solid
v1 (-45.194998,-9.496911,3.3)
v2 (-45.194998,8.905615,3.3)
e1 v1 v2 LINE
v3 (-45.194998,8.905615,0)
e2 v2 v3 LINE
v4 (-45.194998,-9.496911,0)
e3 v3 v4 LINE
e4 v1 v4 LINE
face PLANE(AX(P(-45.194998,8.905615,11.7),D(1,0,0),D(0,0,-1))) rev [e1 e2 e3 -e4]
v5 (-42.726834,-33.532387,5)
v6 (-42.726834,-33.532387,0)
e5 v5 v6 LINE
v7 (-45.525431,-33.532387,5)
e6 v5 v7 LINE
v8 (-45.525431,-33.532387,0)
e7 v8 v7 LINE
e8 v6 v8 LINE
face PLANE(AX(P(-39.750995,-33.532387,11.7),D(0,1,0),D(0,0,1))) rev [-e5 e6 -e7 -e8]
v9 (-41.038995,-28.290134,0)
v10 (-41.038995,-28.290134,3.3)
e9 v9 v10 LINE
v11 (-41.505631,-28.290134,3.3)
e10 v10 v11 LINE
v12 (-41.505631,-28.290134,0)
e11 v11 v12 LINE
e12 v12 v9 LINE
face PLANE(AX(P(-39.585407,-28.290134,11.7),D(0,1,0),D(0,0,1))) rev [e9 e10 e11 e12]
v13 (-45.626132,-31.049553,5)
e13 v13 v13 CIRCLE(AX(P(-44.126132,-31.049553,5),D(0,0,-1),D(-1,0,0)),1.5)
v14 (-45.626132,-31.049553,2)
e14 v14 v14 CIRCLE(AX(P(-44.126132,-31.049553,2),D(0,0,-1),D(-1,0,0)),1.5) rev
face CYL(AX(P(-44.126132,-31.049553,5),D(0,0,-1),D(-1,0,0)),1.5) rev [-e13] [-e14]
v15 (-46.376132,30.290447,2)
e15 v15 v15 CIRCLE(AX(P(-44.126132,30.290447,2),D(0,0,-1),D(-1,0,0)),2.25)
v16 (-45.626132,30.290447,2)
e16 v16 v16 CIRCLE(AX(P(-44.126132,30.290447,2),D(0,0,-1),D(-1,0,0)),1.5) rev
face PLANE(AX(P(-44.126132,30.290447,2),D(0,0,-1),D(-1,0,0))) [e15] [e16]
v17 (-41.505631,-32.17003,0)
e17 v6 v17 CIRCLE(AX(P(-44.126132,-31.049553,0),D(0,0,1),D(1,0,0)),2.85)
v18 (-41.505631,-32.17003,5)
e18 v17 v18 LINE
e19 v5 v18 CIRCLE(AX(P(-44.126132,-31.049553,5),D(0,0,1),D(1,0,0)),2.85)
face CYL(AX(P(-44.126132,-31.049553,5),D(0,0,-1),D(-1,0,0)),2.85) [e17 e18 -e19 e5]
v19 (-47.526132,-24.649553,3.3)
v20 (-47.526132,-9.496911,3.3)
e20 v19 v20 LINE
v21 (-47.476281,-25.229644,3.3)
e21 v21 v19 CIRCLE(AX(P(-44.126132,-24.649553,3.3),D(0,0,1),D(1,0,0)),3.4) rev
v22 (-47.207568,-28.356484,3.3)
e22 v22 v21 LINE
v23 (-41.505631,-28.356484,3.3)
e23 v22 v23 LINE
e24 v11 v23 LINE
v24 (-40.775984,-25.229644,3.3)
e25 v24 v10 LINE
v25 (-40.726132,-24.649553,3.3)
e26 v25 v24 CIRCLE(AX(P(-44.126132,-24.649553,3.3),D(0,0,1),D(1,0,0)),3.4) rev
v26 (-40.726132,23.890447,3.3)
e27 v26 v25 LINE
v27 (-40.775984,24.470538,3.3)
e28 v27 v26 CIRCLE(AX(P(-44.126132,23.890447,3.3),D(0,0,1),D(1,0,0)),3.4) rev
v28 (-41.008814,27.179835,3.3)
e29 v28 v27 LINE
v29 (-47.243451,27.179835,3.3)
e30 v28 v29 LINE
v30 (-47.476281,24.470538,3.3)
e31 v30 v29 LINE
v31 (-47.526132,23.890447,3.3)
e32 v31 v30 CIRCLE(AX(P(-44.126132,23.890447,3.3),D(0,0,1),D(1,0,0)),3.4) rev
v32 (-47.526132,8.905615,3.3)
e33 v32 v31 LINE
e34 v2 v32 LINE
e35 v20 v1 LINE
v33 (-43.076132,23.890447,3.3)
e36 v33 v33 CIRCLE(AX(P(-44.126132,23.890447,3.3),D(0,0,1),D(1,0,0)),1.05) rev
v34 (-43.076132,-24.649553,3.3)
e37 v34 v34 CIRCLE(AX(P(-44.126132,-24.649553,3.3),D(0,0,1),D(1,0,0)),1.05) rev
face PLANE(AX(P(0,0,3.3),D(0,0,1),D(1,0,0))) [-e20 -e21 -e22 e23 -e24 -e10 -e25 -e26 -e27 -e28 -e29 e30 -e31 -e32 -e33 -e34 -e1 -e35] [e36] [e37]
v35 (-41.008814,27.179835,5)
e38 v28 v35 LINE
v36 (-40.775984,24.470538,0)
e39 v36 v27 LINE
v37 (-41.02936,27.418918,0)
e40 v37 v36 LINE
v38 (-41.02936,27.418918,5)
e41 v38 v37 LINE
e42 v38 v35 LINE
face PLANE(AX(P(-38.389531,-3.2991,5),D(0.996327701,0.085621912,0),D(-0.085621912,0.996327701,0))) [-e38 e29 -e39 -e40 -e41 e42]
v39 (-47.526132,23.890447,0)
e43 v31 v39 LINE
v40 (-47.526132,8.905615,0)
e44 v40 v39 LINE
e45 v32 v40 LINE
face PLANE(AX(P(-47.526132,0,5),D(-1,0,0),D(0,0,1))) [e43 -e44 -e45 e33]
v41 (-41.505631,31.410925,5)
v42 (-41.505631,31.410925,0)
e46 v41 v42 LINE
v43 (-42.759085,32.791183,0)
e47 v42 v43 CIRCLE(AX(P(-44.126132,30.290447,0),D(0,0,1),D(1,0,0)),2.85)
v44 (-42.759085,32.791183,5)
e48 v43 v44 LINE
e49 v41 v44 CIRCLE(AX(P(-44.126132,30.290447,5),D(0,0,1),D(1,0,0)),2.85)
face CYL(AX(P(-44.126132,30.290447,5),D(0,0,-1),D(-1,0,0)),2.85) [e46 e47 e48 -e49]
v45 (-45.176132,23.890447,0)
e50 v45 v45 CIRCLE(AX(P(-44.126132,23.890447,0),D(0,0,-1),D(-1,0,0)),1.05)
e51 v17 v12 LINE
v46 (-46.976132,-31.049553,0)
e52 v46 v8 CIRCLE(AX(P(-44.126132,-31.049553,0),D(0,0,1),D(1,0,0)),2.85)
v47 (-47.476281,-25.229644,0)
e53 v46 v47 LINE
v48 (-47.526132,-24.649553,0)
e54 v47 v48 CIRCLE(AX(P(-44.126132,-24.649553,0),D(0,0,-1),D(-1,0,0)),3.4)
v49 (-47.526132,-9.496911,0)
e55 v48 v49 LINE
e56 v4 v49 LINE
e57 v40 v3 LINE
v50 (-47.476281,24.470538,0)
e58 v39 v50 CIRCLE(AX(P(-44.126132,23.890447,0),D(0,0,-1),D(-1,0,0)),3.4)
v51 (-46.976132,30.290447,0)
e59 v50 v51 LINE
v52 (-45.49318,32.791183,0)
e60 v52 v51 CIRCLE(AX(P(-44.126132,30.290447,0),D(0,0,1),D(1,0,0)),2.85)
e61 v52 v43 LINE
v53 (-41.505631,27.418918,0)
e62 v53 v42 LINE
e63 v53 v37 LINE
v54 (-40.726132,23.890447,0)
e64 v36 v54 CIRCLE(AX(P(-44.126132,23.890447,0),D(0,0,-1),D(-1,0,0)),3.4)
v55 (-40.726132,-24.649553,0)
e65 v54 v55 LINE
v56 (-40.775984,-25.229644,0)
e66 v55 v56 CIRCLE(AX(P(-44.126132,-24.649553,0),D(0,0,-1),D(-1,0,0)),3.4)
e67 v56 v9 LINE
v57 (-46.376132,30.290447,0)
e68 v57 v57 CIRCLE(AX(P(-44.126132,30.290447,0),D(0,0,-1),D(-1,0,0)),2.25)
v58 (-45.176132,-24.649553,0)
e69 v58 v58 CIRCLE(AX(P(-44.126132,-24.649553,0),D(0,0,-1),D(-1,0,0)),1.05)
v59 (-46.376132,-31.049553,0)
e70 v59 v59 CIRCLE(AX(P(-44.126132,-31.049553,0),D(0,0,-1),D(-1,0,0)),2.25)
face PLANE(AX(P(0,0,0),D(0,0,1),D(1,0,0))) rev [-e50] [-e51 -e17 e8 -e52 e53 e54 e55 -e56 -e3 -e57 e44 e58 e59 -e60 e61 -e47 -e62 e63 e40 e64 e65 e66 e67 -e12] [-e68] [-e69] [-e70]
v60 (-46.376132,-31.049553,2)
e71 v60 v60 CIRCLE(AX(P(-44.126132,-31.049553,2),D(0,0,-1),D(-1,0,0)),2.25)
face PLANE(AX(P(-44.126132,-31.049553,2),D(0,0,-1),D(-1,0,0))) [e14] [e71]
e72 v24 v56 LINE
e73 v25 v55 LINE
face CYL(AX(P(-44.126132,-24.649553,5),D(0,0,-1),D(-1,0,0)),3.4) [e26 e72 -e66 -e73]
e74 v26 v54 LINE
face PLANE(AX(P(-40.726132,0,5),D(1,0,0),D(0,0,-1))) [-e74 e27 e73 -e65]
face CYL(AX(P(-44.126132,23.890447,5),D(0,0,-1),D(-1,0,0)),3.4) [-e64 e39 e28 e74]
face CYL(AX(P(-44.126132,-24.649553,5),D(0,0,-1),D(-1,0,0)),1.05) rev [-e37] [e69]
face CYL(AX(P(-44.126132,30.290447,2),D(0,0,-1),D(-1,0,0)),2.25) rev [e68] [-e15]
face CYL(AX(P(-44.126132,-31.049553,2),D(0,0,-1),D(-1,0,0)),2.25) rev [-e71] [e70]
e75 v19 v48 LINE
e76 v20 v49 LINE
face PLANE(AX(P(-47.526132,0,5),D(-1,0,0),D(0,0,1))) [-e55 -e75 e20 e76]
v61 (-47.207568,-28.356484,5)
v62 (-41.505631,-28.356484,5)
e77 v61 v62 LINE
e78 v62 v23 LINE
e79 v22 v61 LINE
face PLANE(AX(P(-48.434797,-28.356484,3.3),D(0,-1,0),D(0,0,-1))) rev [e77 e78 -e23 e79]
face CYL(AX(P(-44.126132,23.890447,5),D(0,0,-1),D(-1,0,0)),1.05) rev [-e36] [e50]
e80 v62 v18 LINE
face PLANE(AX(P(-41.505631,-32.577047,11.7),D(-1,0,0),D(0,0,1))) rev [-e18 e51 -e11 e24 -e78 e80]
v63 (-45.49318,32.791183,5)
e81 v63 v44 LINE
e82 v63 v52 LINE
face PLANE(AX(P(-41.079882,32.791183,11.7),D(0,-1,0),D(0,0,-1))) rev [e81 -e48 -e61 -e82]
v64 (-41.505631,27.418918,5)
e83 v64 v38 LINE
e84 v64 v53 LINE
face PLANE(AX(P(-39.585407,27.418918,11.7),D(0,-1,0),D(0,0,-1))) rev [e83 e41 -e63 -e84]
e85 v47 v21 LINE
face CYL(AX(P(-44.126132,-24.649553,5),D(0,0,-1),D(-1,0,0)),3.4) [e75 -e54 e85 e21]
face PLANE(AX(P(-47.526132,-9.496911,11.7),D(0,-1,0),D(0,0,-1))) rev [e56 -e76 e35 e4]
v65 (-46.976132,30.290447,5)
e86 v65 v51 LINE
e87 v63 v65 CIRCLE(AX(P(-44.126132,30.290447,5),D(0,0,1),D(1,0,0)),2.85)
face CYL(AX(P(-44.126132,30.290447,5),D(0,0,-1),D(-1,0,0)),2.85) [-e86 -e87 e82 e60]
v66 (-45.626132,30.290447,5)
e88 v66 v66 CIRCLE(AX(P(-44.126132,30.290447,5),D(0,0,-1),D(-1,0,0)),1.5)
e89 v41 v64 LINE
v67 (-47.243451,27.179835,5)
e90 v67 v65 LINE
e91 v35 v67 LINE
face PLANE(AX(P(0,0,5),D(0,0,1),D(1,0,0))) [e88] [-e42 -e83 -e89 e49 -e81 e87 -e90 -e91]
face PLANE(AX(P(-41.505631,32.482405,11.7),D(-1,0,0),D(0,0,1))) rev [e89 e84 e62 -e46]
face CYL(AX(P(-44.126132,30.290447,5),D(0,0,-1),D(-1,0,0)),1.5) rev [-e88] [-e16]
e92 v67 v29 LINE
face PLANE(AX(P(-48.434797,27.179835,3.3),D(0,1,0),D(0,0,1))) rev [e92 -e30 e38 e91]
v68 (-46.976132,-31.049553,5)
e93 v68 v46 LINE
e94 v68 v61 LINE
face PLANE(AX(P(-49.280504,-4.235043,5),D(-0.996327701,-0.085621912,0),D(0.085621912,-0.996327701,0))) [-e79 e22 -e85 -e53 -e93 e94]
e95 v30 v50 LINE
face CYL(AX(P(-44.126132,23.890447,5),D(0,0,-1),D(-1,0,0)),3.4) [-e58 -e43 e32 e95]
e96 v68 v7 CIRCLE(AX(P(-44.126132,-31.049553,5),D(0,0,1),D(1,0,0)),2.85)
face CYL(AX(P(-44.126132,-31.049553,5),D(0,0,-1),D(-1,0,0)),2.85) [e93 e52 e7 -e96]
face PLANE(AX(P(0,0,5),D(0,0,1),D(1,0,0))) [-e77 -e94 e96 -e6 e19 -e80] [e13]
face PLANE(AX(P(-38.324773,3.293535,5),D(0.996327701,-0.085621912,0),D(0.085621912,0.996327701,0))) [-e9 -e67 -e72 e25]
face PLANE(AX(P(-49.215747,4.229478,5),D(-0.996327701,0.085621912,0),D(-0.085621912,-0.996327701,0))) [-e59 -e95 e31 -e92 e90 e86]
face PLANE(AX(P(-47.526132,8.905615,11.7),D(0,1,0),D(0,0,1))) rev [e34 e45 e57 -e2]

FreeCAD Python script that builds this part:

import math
import FreeCAD as App
import Part
import Sketcher
from FreeCAD import Vector
Q = App.Units.Quantity


def add_polygon(sketch, points):
    """Adds a closed chain of lines whose ends are joined by coincident constraints."""
    first, n = sketch.GeometryCount, len(points)
    for a, b in zip(points, points[1:] + points[:1]):
        sketch.addGeometry(Part.LineSegment(App.Vector(*a, 0), App.Vector(*b, 0)), False)
    for i in range(n):
        sketch.addConstraint(Sketcher.Constraint("Coincident", first + i, 2, first + (i + 1) % n, 1))

doc = App.newDocument("Part")
params = doc.addObject("Spreadsheet::Sheet", "Params")
for row, (alias, value) in enumerate([
    ("sketch1_radius", "2.85 mm"),
    ("sketch1_height", "48.54 mm"),
    ("pad1_length", "5 mm"),
    ("sketch2_diameter", "3 mm"),
    ("sketch2_diameter2", "5 mm"),
    ("pocket1_length", "5 mm"),
    ("sketch3_diameter", "6.8 mm"),
    ("pad2_length", "5 mm"),
    ("sketch4_diameter", "2.1 mm"),
    ("pocket2_length", "5 mm"),
    ("sketch5_diameter", "4.5 mm"),
    ("pocket3_length", "2 mm"),
    ("pocket4_length", "1.7 mm"),
    ("pocket5_length", "11.7 mm"),
], start=1):
    params.set(f"A{row}", alias)
    params.set(f"B{row}", "=" + value)
    params.setAlias(f"B{row}", alias)

body = doc.addObject("PartDesign::Body", "Body")

# Sketch on XY plane
sketch1 = body.newObject("Sketcher::SketchObject", "Sketch")
sketch1.AttachmentSupport = (doc.getObject("XY_Plane"), [""])
sketch1.MapMode = "FlatFace"
sketch1.addGeometry([
    Part.LineSegment(Vector(-40.7, -24.6, 0), Vector(-40.7, 23.9, 0)),  # 0
    Part.LineSegment(Vector(-40.7, 23.9, 0), Vector(-40.8, 24.5, 0)),  # 1
    Part.LineSegment(Vector(-40.8, 24.5, 0), Vector(-41.3, 30.3, 0)),  # 2
    Part.ArcOfCircle(Part.Circle(Vector(-44.1, 30.3, 0), Vector(0, 0, 1), 2.9), math.radians(0), math.radians(180)),  # 3
    Part.LineSegment(Vector(-47, 30.3, 0), Vector(-47.5, 24.5, 0)),  # 4
    Part.LineSegment(Vector(-47.5, 24.5, 0), Vector(-47.5, 23.9, 0)),  # 5
    Part.LineSegment(Vector(-47.5, 23.9, 0), Vector(-47.5, -24.6, 0)),  # 6
    Part.LineSegment(Vector(-47.5, -24.6, 0), Vector(-47.5, -25.2, 0)),  # 7
    Part.LineSegment(Vector(-47.5, -25.2, 0), Vector(-47, -31, 0)),  # 8
    Part.ArcOfCircle(Part.Circle(Vector(-44.1, -31, 0), Vector(0, 0, 1), 2.9), math.radians(180), math.radians(360)),  # 9
    Part.LineSegment(Vector(-41.3, -31, 0), Vector(-40.8, -25.2, 0)),  # 10
    Part.LineSegment(Vector(-40.8, -25.2, 0), Vector(-40.7, -24.6, 0)),  # 11
], False)
sketch1.addConstraint([
    Sketcher.Constraint("Coincident", 0, 2, 1, 1),
    Sketcher.Constraint("Coincident", 1, 2, 2, 1),
    Sketcher.Constraint("Coincident", 2, 2, 3, 1),
    Sketcher.Constraint("Coincident", 3, 2, 4, 1),
    Sketcher.Constraint("Coincident", 4, 2, 5, 1),
    Sketcher.Constraint("Coincident", 5, 2, 6, 1),
    Sketcher.Constraint("Coincident", 6, 2, 7, 1),
    Sketcher.Constraint("Coincident", 7, 2, 8, 1),
    Sketcher.Constraint("Coincident", 8, 2, 9, 1),
    Sketcher.Constraint("Coincident", 9, 2, 10, 1),
    Sketcher.Constraint("Coincident", 10, 2, 11, 1),
    Sketcher.Constraint("Coincident", 11, 2, 0, 1),
    Sketcher.Constraint("Vertical", 0),
    Sketcher.Constraint("Vertical", 6),
    Sketcher.Constraint("Equal", 3, 9),
    Sketcher.Constraint("Parallel", 1, 2),
    Sketcher.Constraint("Parallel", 4, 5),
    Sketcher.Constraint("Parallel", 2, 7),
    Sketcher.Constraint("Parallel", 7, 8),
    Sketcher.Constraint("Parallel", 5, 10),
    Sketcher.Constraint("Parallel", 10, 11),
    Sketcher.Constraint("Horizontal", 3, 3, 2, 2),
    Sketcher.Constraint("Horizontal", 2, 2, 3, 2),
    Sketcher.Constraint("Horizontal", 1, 2, 4, 2),
    Sketcher.Constraint("Horizontal", 0, 2, 5, 2),
    Sketcher.Constraint("Horizontal", 9, 3, 8, 2),
    Sketcher.Constraint("Horizontal", 8, 2, 9, 2),
    Sketcher.Constraint("Horizontal", 7, 2, 10, 2),
    Sketcher.Constraint("Horizontal", 6, 2, 11, 2),
    Sketcher.Constraint("Vertical", 3, 3, 9, 3),
    Sketcher.Constraint("Vertical", 4, 2, 7, 2),
    Sketcher.Constraint("Radius", 3, Q("2.85 mm")),
    Sketcher.Constraint("DistanceY", 0, 1, 0, 2, Q("48.54 mm")),
    Sketcher.Constraint("DistanceX", 3, 3, 0, 2, Q("3.4 mm")),
    Sketcher.Constraint("DistanceY", 0, 2, 3, 3, Q("6.4 mm")),
    Sketcher.Constraint("Distance", 1, Q("0.582229 mm")),
    Sketcher.Constraint("DistanceX", 4, 2, -1, 1, Q("47.476281 mm")),
    Sketcher.Constraint("DistanceY", -1, 1, 3, 3, Q("30.290447 mm")),
])
sketch1.setExpression("Constraints[31]", "Params.sketch1_radius")
sketch1.setExpression("Constraints[32]", "Params.sketch1_height")
pad1 = body.newObject("PartDesign::Pad", "Pad")
pad1.Profile = sketch1
pad1.setExpression("Length", "Params.pad1_length")

# Sketch on XY plane
sketch2 = body.newObject("Sketcher::SketchObject", "Sketch001")
sketch2.AttachmentSupport = (doc.getObject("XY_Plane"), [""])
sketch2.MapMode = "FlatFace"
sketch2.addGeometry([
    Part.Circle(Vector(-44.1, 30.3, 0), Vector(0, 0, 1), 1.5),
    Part.Circle(Vector(-44.1, 23.9, 0), Vector(0, 0, 1), 2.5),
    Part.Circle(Vector(-44.1, -24.6, 0), Vector(0, 0, 1), 2.5),
    Part.Circle(Vector(-44.1, -31, 0), Vector(0, 0, 1), 1.5),
], False)
sketch2.addConstraint([
    Sketcher.Constraint("Equal", 1, 2),
    Sketcher.Constraint("Equal", 0, 3),
    Sketcher.Constraint("Vertical", 0, 3, 1, 3),
    Sketcher.Constraint("Vertical", 1, 3, 2, 3),
    Sketcher.Constraint("Vertical", 2, 3, 3, 3),
    Sketcher.Constraint("Diameter", 0, Q("3 mm")),
    Sketcher.Constraint("Diameter", 1, Q("5 mm")),
    Sketcher.Constraint("DistanceY", 1, 3, 0, 3, Q("6.4 mm")),
    Sketcher.Constraint("DistanceY", 3, 3, 2, 3, Q("6.4 mm")),
    Sketcher.Constraint("DistanceY", 2, 3, 1, 3, Q("48.54 mm")),
    Sketcher.Constraint("DistanceX", 0, 3, -1, 1, Q("44.126132 mm")),
    Sketcher.Constraint("DistanceY", -1, 1, 0, 3, Q("30.290447 mm")),
])
sketch2.setExpression("Constraints[5]", "Params.sketch2_diameter")
sketch2.setExpression("Constraints[6]", "Params.sketch2_diameter2")
pocket1 = body.newObject("PartDesign::Pocket", "Pocket")
pocket1.Profile = sketch2
pocket1.setExpression("Length", "Params.pocket1_length")
pocket1.Reversed = True

# Sketch on XY plane
sketch3 = body.newObject("Sketcher::SketchObject", "Sketch002")
sketch3.AttachmentSupport = (doc.getObject("XY_Plane"), [""])
sketch3.MapMode = "FlatFace"
sketch3.addGeometry([
    Part.Circle(Vector(-44.1, 23.9, 0), Vector(0, 0, 1), 3.4),
    Part.Circle(Vector(-44.1, -24.6, 0), Vector(0, 0, 1), 3.4),
], False)
sketch3.addConstraint([
    Sketcher.Constraint("Equal", 0, 1),
    Sketcher.Constraint("Vertical", 0, 3, 1, 3),
    Sketcher.Constraint("Diameter", 0, Q("6.8 mm")),
    Sketcher.Constraint("DistanceY", 1, 3, 0, 3, Q("48.54 mm")),
    Sketcher.Constraint("DistanceX", 0, 3, -1, 1, Q("44.126132 mm")),
    Sketcher.Constraint("DistanceY", -1, 1, 0, 3, Q("23.890447 mm")),
])
sketch3.setExpression("Constraints[2]", "Params.sketch3_diameter")
pad2 = body.newObject("PartDesign::Pad", "Pad001")
pad2.Profile = sketch3
pad2.setExpression("Length", "Params.pad2_length")

# Sketch on XY plane
sketch4 = body.newObject("Sketcher::SketchObject", "Sketch003")
sketch4.AttachmentSupport = (doc.getObject("XY_Plane"), [""])
sketch4.MapMode = "FlatFace"
sketch4.addGeometry([
    Part.Circle(Vector(-44.1, -24.6, 0), Vector(0, 0, 1), 1.1),
    Part.Circle(Vector(-44.1, 23.9, 0), Vector(0, 0, 1), 1.1),
], False)
sketch4.addConstraint([
    Sketcher.Constraint("Equal", 0, 1),
    Sketcher.Constraint("Vertical", 0, 3, 1, 3),
    Sketcher.Constraint("Diameter", 0, Q("2.1 mm")),
    Sketcher.Constraint("DistanceY", 0, 3, 1, 3, Q("48.54 mm")),
    Sketcher.Constraint("DistanceX", 0, 3, -1, 1, Q("44.126132 mm")),
    Sketcher.Constraint("DistanceY", 0, 3, -1, 1, Q("24.649553 mm")),
])
sketch4.setExpression("Constraints[2]", "Params.sketch4_diameter")
pocket2 = body.newObject("PartDesign::Pocket", "Pocket001")
pocket2.Profile = sketch4
pocket2.setExpression("Length", "Params.pocket2_length")
pocket2.Reversed = True

# Sketch on XY plane
sketch5 = body.newObject("Sketcher::SketchObject", "Sketch004")
sketch5.AttachmentSupport = (doc.getObject("XY_Plane"), [""])
sketch5.MapMode = "FlatFace"
sketch5.addGeometry([
    Part.Circle(Vector(-44.1, 30.3, 0), Vector(0, 0, 1), 2.2),
    Part.Circle(Vector(-44.1, -31, 0), Vector(0, 0, 1), 2.2),
], False)
sketch5.addConstraint([
    Sketcher.Constraint("Equal", 0, 1),
    Sketcher.Constraint("Vertical", 0, 3, 1, 3),
    Sketcher.Constraint("Diameter", 0, Q("4.5 mm")),
    Sketcher.Constraint("DistanceY", 1, 3, 0, 3, Q("61.34 mm")),
    Sketcher.Constraint("DistanceX", 0, 3, -1, 1, Q("44.126132 mm")),
    Sketcher.Constraint("DistanceY", -1, 1, 0, 3, Q("30.290447 mm")),
])
sketch5.setExpression("Constraints[2]", "Params.sketch5_diameter")
pocket3 = body.newObject("PartDesign::Pocket", "Pocket002")
pocket3.Profile = sketch5
pocket3.setExpression("Length", "Params.pocket3_length")
pocket3.Reversed = True

# Sketch on XY plane
sketch6 = body.newObject("Sketcher::SketchObject", "Sketch005")
sketch6.AttachmentSupport = (doc.getObject("XY_Plane"), [""])
sketch6.MapMode = "FlatFace"
sketch6.AttachmentOffset = App.Placement(Vector(0, 0, 5), App.Rotation())
add_polygon(sketch6, [(-48, 27), (-48, -28), (-40, -28), (-40, 27)])  # lines 0-3
sketch6.addConstraint([
    Sketcher.Constraint("Vertical", 0),
    Sketcher.Constraint("Horizontal", 1),
    Sketcher.Constraint("Vertical", 2),
    Sketcher.Constraint("Horizontal", 3),
    Sketcher.Constraint("DistanceY", 0, 2, 0, 1, Q("55.536319 mm")),
    Sketcher.Constraint("DistanceX", 1, 1, 1, 2, Q("8.368883 mm")),
    Sketcher.Constraint("DistanceX", 0, 2, -1, 1, Q("48.434797 mm")),
    Sketcher.Constraint("DistanceY", 0, 2, -1, 1, Q("28.356484 mm")),
])
pocket4 = body.newObject("PartDesign::Pocket", "Pocket003")
pocket4.Profile = sketch6
pocket4.setExpression("Length", "Params.pocket4_length")

# Sketch on XY plane
sketch7 = body.newObject("Sketcher::SketchObject", "Sketch006")
sketch7.AttachmentSupport = (doc.getObject("XY_Plane"), [""])
sketch7.MapMode = "FlatFace"
add_polygon(sketch7, [(-45.2, 8.9), (-45.2, -9.5), (-47.5, -9.5), (-47.5, 8.9)])  # lines 0-3
add_polygon(sketch7, [(-41.1, 34.5), (-41.1, 32.8), (-47.9, 32.8), (-47.9, 34.5)])  # lines 4-7
add_polygon(sketch7, [(-39.8, -33.5), (-39.8, -36.1), (-48.8, -36.1), (-48.8, -33.5)])  # lines 8-11
add_polygon(sketch7, [(-39.6, 32.5), (-39.6, 27.4), (-41.5, 27.4), (-41.5, 32.5)])  # lines 12-15
add_polygon(sketch7, [(-39.6, -28.3), (-39.6, -32.6), (-41.5, -32.6), (-41.5, -28.3)])  # lines 16-19
sketch7.addConstraint([
    Sketcher.Constraint("Vertical", 0),
    Sketcher.Constraint("Horizontal", 1),
    Sketcher.Constraint("Vertical", 2),
    Sketcher.Constraint("Horizontal", 3),
    Sketcher.Constraint("Vertical", 4),
    Sketcher.Constraint("Horizontal", 5),
    Sketcher.Constraint("Vertical", 6),
    Sketcher.Constraint("Horizontal", 7),
    Sketcher.Constraint("Vertical", 8),
    Sketcher.Constraint("Horizontal", 9),
    Sketcher.Constraint("Vertical", 10),
    Sketcher.Constraint("Horizontal", 11),
    Sketcher.Constraint("Vertical", 12),
    Sketcher.Constraint("Horizontal", 13),
    Sketcher.Constraint("Vertical", 14),
    Sketcher.Constraint("Horizontal", 15),
    Sketcher.Constraint("Vertical", 16),
    Sketcher.Constraint("Horizontal", 17),
    Sketcher.Constraint("Vertical", 18),
    Sketcher.Constraint("Horizontal", 19),
    Sketcher.Constraint("Vertical", 15, 2, 16, 2),
    Sketcher.Constraint("Vertical", 14, 2, 17, 2),
    Sketcher.Constraint("DistanceX", 5, 2, 5, 1, Q("6.804601 mm")),
    Sketcher.Constraint("DistanceX", 0, 2, -1, 1, Q("45.194998 mm")),
    Sketcher.Constraint("DistanceY", 10, 2, 2, 2, Q("42.438001 mm")),
    Sketcher.Constraint("DistanceX", 9, 2, 9, 1, Q("9.007409 mm")),
    Sketcher.Constraint("DistanceX", 1, 2, 1, 1, Q("2.331134 mm")),
    Sketcher.Constraint("DistanceX", 13, 2, 13, 1, Q("1.920223 mm")),
    Sketcher.Constraint("DistanceY", 0, 2, 0, 1, Q("18.402526 mm")),
    Sketcher.Constraint("DistanceY", 4, 2, 4, 1, Q("1.708942 mm")),
    Sketcher.Constraint("DistanceY", 8, 2, 8, 1, Q("2.575965 mm")),
    Sketcher.Constraint("DistanceY", 12, 2, 12, 1, Q("5.063487 mm")),
    Sketcher.Constraint("DistanceY", 16, 2, 16, 1, Q("4.286912 mm")),
    Sketcher.Constraint("DistanceY", 0, 2, -1, 1, Q("9.496911 mm")),
    Sketcher.Constraint("DistanceY", -1, 1, 12, 2, Q("27.418918 mm")),
    Sketcher.Constraint("DistanceX", 13, 2, -1, 1, Q("41.505631 mm")),
    Sketcher.Constraint("DistanceY", 3, 2, 4, 2, Q("23.885569 mm")),
    Sketcher.Constraint("DistanceX", 2, 2, 4, 2, Q("6.44625 mm")),
    Sketcher.Constraint("DistanceX", 9, 2, 1, 2, Q("1.232272 mm")),
    Sketcher.Constraint("DistanceY", 11, 2, 16, 2, Q("0.95534 mm")),
])
pocket5 = body.newObject("PartDesign::Pocket", "Pocket004")
pocket5.Profile = sketch7
pocket5.setExpression("Length", "Params.pocket5_length")
pocket5.Reversed = True

doc.recompute()
